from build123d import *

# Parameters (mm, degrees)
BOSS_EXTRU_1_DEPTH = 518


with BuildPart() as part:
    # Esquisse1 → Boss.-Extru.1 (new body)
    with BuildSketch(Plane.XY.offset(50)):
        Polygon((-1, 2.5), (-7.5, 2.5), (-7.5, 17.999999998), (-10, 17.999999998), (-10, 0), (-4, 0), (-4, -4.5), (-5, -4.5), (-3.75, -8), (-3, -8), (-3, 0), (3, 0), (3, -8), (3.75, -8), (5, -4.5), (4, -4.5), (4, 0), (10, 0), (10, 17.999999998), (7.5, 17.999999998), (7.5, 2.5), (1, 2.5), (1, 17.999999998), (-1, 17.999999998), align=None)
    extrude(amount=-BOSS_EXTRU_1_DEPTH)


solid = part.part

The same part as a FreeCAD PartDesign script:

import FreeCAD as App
import Part
import Sketcher

V = App.Vector

doc = App.newDocument("Part")
body = doc.addObject("PartDesign::Body", "Body")

# Sketch on XY plane
sketch1 = body.newObject("Sketcher::SketchObject", "Sketch")
sketch1.AttachmentSupport = (doc.getObject("XY_Plane"), [""])
sketch1.MapMode = "FlatFace"
sketch1.AttachmentOffset = App.Placement(V(0, 0, 50), App.Rotation())
sketch1.addGeometry(Part.LineSegment(V(-1, 2.5, 0), V(-7.5, 2.5, 0)), False)
sketch1.addGeometry(Part.LineSegment(V(-7.5, 2.5, 0), V(-7.5, 18, 0)), False)
sketch1.addGeometry(Part.LineSegment(V(-7.5, 18, 0), V(-10, 18, 0)), False)
sketch1.addGeometry(Part.LineSegment(V(-10, 18, 0), V(-10, 0, 0)), False)
sketch1.addGeometry(Part.LineSegment(V(-10, 0, 0), V(-4, 0, 0)), False)
sketch1.addGeometry(Part.LineSegment(V(-4, 0, 0), V(-4, -4.5, 0)), False)
sketch1.addGeometry(Part.LineSegment(V(-4, -4.5, 0), V(-5, -4.5, 0)), False)
sketch1.addGeometry(Part.LineSegment(V(-5, -4.5, 0), V(-3.8, -8, 0)), False)
sketch1.addGeometry(Part.LineSegment(V(-3.8, -8, 0), V(-3, -8, 0)), False)
sketch1.addGeometry(Part.LineSegment(V(-3, -8, 0), V(-3, 0, 0)), False)
sketch1.addGeometry(Part.LineSegment(V(-3, 0, 0), V(3, 0, 0)), False)
sketch1.addGeometry(Part.LineSegment(V(3, 0, 0), V(3, -8, 0)), False)
sketch1.addGeometry(Part.LineSegment(V(3, -8, 0), V(3.8, -8, 0)), False)
sketch1.addGeometry(Part.LineSegment(V(3.8, -8, 0), V(5, -4.5, 0)), False)
sketch1.addGeometry(Part.LineSegment(V(5, -4.5, 0), V(4, -4.5, 0)), False)
sketch1.addGeometry(Part.LineSegment(V(4, -4.5, 0), V(4, 0, 0)), False)
sketch1.addGeometry(Part.LineSegment(V(4, 0, 0), V(10, 0, 0)), False)
sketch1.addGeometry(Part.LineSegment(V(10, 0, 0), V(10, 18, 0)), False)
sketch1.addGeometry(Part.LineSegment(V(10, 18, 0), V(7.5, 18, 0)), False)
sketch1.addGeometry(Part.LineSegment(V(7.5, 18, 0), V(7.5, 2.5, 0)), False)
sketch1.addGeometry(Part.LineSegment(V(7.5, 2.5, 0), V(1, 2.5, 0)), False)
sketch1.addGeometry(Part.LineSegment(V(1, 2.5, 0), V(1, 18, 0)), False)
sketch1.addGeometry(Part.LineSegment(V(1, 18, 0), V(-1, 18, 0)), False)
sketch1.addGeometry(Part.LineSegment(V(-1, 18, 0), V(-1, 2.5, 0)), False)
sketch1.addConstraint(Sketcher.Constraint("Coincident", 0, 2, 1, 1))
sketch1.addConstraint(Sketcher.Constraint("Coincident", 1, 2, 2, 1))
sketch1.addConstraint(Sketcher.Constraint("Coincident", 2, 2, 3, 1))
sketch1.addConstraint(Sketcher.Constraint("Coincident", 3, 2, 4, 1))
sketch1.addConstraint(Sketcher.Constraint("Coincident", 4, 2, 5, 1))
sketch1.addConstraint(Sketcher.Constraint("Coincident", 5, 2, 6, 1))
sketch1.addConstraint(Sketcher.Constraint("Coincident", 6, 2, 7, 1))
sketch1.addConstraint(Sketcher.Constraint("Coincident", 7, 2, 8, 1))
sketch1.addConstraint(Sketcher.Constraint("Coincident", 8, 2, 9, 1))
sketch1.addConstraint(Sketcher.Constraint("Coincident", 9, 2, 10, 1))
sketch1.addConstraint(Sketcher.Constraint("Coincident", 10, 2, 11, 1))
sketch1.addConstraint(Sketcher.Constraint("Coincident", 11, 2, 12, 1))
sketch1.addConstraint(Sketcher.Constraint("Coincident", 12, 2, 13, 1))
sketch1.addConstraint(Sketcher.Constraint("Coincident", 13, 2, 14, 1))
sketch1.addConstraint(Sketcher.Constraint("Coincident", 14, 2, 15, 1))
sketch1.addConstraint(Sketcher.Constraint("Coincident", 15, 2, 16, 1))
sketch1.addConstraint(Sketcher.Constraint("Coincident", 16, 2, 17, 1))
sketch1.addConstraint(Sketcher.Constraint("Coincident", 17, 2, 18, 1))
sketch1.addConstraint(Sketcher.Constraint("Coincident", 18, 2, 19, 1))
sketch1.addConstraint(Sketcher.Constraint("Coincident", 19, 2, 20, 1))
sketch1.addConstraint(Sketcher.Constraint("Coincident", 20, 2, 21, 1))
sketch1.addConstraint(Sketcher.Constraint("Coincident", 21, 2, 22, 1))
sketch1.addConstraint(Sketcher.Constraint("Coincident", 22, 2, 23, 1))
sketch1.addConstraint(Sketcher.Constraint("Coincident", 23, 2, 0, 1))
sketch1.addConstraint(Sketcher.Constraint("Horizontal", 0))
sketch1.addConstraint(Sketcher.Constraint("Vertical", 1))
sketch1.addConstraint(Sketcher.Constraint("Horizontal", 2))
sketch1.addConstraint(Sketcher.Constraint("Vertical", 3))
sketch1.addConstraint(Sketcher.Constraint("Horizontal", 4))
sketch1.addConstraint(Sketcher.Constraint("Vertical", 5))
sketch1.addConstraint(Sketcher.Constraint("Horizontal", 6))
sketch1.addConstraint(Sketcher.Constraint("Horizontal", 8))
sketch1.addConstraint(Sketcher.Constraint("Vertical", 9))
sketch1.addConstraint(Sketcher.Constraint("Horizontal", 10))
sketch1.addConstraint(Sketcher.Constraint("Vertical", 11))
sketch1.addConstraint(Sketcher.Constraint("Horizontal", 12))
sketch1.addConstraint(Sketcher.Constraint("Horizontal", 14))
sketch1.addConstraint(Sketcher.Constraint("Vertical", 15))
sketch1.addConstraint(Sketcher.Constraint("Horizontal", 16))
sketch1.addConstraint(Sketcher.Constraint("Vertical", 17))
sketch1.addConstraint(Sketcher.Constraint("Horizontal", 18))
sketch1.addConstraint(Sketcher.Constraint("Vertical", 19))
sketch1.addConstraint(Sketcher.Constraint("Horizontal", 20))
sketch1.addConstraint(Sketcher.Constraint("Vertical", 21))
sketch1.addConstraint(Sketcher.Constraint("Horizontal", 22))
sketch1.addConstraint(Sketcher.Constraint("Vertical", 23))
sketch1.addConstraint(Sketcher.Constraint("Symmetric", 9, 2, 10, 2, -1, 1))
sketch1.addConstraint(Sketcher.Constraint("Symmetric", 4, 2, 15, 2, -1, 1))
sketch1.addConstraint(Sketcher.Constraint("Symmetric", 7, 2, 12, 2, -2))
sketch1.addConstraint(Sketcher.Constraint("Symmetric", 6, 2, 13, 2, -2))
sketch1.addConstraint(Sketcher.Constraint("Symmetric", 3, 2, 16, 2, -2))
sketch1.addConstraint(Sketcher.Constraint("Symmetric", 1, 2, 18, 2, -2))
sketch1.addConstraint(Sketcher.Constraint("Symmetric", 20, 2, 23, 2, -2))
sketch1.addConstraint(Sketcher.Constraint("Horizontal", 18, 2, 21, 2))
sketch1.addConstraint(Sketcher.Constraint("Equal", 4, 10))
sketch1.addConstraint(Sketcher.Constraint("DistanceX", 4, 1, 4, 2, 6.0))
sketch1.addConstraint(Sketcher.Constraint("DistanceX", 6, 2, 6, 1, 1.0))
sketch1.addConstraint(Sketcher.Constraint("DistanceX", 22, 2, 22, 1, 2.0))
sketch1.addConstraint(Sketcher.Constraint("DistanceY", 3, 2, 3, 1, 18.0))
sketch1.addConstraint(Sketcher.Constraint("DistanceY", 9, 1, 9, 2, 8.0))
sketch1.addConstraint(Sketcher.Constraint("DistanceX", 0, 2, 0, 1, 6.5))
sketch1.addConstraint(Sketcher.Constraint("DistanceX", 2, 2, 2, 1, 2.5))
sketch1.addConstraint(Sketcher.Constraint("DistanceY", 1, 1, 1, 2, 15.5))
sketch1.addConstraint(Sketcher.Constraint("DistanceY", 5, 2, 5, 1, 4.5))
sketch1.addConstraint(Sketcher.Constraint("DistanceX", 8, 1, 8, 2, 0.75))
pad1 = body.newObject("PartDesign::Pad", "Pad")
pad1.Profile = sketch1
pad1.Length = 518
pad1.Reversed = True

doc.recompute()
